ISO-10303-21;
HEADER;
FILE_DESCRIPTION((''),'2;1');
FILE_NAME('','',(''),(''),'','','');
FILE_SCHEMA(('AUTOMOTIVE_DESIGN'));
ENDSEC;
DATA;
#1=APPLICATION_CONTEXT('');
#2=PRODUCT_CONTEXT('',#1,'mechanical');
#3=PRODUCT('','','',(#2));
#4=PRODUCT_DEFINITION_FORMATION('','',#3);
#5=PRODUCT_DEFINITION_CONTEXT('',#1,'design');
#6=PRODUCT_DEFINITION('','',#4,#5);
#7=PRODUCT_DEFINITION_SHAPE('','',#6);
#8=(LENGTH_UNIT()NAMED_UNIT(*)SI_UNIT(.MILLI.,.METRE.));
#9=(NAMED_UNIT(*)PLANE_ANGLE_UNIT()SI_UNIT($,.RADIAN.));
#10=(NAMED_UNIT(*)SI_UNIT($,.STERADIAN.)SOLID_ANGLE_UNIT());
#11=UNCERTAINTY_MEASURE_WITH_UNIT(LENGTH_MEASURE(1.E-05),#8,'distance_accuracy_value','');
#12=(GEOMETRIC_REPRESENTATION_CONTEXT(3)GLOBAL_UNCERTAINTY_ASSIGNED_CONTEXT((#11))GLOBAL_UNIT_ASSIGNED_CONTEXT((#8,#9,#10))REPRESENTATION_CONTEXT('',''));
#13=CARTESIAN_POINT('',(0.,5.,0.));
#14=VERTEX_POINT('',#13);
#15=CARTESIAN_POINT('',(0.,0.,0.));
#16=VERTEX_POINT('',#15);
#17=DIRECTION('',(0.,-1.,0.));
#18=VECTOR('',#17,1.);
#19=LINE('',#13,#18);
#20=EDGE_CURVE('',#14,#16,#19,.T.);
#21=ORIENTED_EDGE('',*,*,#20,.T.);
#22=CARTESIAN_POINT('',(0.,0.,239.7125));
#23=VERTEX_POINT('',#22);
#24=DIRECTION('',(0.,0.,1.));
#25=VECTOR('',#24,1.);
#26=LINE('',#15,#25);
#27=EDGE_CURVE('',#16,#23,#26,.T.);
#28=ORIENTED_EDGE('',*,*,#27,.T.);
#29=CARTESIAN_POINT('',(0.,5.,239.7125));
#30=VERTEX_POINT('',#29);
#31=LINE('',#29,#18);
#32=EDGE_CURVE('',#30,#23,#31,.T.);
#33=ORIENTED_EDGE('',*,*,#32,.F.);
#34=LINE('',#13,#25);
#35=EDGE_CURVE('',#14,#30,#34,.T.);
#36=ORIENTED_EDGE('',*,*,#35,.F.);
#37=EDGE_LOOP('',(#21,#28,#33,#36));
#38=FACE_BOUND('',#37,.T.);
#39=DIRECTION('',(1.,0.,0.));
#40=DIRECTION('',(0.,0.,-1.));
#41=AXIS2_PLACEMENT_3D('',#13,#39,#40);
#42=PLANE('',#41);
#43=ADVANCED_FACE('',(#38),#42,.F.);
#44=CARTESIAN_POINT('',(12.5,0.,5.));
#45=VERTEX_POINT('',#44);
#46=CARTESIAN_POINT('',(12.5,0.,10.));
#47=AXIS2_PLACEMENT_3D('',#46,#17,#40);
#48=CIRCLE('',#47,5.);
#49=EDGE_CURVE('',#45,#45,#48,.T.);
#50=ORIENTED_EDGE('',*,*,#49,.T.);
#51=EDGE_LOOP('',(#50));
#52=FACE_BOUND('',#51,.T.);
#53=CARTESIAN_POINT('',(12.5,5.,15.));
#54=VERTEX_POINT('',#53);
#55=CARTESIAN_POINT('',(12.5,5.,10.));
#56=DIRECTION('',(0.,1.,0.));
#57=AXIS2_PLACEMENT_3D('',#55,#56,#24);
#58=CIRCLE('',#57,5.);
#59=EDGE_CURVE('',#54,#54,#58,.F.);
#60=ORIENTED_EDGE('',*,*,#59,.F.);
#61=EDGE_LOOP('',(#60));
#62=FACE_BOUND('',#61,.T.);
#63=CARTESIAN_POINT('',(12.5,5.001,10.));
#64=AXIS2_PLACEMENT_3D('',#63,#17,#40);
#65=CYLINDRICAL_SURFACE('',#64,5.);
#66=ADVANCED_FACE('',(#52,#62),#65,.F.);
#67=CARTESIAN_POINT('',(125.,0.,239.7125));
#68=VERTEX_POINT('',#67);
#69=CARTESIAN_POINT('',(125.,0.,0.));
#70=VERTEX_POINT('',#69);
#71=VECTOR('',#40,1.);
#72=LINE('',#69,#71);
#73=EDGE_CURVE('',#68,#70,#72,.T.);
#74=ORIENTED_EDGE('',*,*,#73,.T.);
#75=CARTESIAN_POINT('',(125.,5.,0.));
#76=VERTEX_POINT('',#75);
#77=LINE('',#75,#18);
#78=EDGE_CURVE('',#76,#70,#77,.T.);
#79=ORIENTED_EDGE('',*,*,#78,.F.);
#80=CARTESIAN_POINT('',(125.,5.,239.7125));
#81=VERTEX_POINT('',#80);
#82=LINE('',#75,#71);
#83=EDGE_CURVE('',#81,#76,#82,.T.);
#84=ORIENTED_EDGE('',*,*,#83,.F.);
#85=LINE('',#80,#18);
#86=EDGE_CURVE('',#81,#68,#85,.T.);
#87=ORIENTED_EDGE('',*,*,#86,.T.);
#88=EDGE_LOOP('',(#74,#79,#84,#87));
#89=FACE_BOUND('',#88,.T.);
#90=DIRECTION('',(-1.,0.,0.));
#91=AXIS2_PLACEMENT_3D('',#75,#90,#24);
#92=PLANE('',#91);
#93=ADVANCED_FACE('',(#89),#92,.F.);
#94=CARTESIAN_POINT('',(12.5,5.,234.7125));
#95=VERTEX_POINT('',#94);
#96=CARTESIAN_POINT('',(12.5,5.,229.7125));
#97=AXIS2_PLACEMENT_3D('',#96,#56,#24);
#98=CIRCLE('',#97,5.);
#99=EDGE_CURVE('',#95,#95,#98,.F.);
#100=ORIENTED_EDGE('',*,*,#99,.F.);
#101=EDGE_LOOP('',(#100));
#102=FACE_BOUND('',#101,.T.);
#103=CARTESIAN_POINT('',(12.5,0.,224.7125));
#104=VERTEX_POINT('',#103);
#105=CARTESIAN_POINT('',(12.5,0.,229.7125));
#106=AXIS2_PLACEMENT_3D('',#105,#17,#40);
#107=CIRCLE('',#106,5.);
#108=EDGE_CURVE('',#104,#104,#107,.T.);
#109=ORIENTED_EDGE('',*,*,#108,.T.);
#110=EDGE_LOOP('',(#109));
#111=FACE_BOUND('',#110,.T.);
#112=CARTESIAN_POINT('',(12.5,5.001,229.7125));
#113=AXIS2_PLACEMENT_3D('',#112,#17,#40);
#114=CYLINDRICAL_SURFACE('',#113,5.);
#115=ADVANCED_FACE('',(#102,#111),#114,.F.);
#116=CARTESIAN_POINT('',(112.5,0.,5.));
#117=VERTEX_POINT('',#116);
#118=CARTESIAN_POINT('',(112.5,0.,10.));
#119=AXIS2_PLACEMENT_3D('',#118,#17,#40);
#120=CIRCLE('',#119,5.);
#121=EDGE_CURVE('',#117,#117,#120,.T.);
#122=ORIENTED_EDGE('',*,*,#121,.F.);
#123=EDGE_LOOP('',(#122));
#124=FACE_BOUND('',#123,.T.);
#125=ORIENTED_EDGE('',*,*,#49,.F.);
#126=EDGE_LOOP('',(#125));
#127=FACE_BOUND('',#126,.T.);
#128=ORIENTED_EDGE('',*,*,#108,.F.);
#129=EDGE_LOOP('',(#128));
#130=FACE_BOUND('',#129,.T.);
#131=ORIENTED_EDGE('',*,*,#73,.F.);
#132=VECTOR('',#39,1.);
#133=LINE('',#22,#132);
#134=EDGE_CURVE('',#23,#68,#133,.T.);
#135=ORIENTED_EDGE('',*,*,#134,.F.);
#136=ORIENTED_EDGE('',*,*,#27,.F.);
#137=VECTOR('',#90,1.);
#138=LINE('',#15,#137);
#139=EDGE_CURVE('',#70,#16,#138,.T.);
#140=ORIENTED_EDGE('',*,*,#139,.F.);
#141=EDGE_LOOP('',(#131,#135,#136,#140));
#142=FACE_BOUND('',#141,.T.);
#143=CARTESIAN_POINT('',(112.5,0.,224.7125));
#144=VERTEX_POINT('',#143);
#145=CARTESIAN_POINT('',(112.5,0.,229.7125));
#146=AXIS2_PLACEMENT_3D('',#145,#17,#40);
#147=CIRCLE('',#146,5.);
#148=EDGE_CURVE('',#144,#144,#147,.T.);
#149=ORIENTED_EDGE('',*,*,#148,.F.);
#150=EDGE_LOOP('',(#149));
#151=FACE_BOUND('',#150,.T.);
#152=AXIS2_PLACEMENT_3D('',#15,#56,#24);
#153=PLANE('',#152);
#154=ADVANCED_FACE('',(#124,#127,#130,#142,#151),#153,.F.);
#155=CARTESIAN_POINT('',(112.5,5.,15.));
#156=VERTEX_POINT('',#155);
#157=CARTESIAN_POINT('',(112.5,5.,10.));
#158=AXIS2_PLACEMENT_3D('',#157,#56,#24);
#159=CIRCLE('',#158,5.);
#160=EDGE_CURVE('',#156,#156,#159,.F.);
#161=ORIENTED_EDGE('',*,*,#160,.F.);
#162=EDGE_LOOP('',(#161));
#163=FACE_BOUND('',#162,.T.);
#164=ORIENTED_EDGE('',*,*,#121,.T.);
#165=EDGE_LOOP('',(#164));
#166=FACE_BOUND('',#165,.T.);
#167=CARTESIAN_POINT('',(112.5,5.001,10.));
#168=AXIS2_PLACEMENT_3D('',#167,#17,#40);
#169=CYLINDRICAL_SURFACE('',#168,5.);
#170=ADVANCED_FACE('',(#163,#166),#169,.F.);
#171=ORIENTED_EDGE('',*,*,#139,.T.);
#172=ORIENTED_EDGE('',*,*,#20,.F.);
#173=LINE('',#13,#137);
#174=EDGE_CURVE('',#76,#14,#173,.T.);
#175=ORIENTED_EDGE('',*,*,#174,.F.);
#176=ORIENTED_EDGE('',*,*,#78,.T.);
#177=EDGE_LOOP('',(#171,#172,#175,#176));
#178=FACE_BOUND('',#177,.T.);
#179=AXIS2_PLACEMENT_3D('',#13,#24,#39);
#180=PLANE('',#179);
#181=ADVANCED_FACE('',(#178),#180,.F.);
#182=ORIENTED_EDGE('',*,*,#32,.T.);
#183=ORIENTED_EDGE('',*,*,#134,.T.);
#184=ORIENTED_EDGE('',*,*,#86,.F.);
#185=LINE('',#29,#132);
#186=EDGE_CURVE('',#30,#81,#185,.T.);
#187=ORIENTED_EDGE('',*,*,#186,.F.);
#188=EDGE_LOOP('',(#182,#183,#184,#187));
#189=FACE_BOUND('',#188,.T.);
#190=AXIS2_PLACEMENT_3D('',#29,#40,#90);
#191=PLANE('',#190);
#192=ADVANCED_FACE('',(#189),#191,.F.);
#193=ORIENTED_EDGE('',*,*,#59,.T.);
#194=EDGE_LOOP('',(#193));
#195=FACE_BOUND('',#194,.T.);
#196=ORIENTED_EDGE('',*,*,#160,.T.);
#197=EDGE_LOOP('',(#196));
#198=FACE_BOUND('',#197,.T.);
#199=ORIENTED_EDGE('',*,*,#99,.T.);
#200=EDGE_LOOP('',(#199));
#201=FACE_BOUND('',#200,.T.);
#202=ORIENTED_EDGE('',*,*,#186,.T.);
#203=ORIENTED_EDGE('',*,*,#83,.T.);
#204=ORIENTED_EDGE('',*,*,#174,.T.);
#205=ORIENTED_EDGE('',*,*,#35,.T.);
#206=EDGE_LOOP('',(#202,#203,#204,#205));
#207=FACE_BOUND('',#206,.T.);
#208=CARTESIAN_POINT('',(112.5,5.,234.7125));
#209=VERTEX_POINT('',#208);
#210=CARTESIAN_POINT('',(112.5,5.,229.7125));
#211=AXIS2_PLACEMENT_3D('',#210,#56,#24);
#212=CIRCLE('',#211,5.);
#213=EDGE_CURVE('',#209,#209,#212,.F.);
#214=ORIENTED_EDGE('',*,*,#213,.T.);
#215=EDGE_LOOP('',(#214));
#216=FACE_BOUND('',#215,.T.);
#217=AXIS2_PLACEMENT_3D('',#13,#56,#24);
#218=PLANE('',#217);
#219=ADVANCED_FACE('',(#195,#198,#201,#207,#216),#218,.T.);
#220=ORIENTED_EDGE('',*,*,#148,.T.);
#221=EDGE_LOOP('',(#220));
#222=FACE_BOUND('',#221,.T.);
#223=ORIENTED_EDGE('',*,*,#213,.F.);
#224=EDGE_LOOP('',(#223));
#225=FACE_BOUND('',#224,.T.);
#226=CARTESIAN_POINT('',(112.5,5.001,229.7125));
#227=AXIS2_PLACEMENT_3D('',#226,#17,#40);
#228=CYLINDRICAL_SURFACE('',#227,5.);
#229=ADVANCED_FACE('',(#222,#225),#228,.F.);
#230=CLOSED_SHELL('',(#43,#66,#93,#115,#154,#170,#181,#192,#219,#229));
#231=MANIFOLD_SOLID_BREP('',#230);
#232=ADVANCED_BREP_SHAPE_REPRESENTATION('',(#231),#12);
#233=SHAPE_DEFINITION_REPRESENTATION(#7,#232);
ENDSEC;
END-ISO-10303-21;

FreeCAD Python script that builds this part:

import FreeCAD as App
import Part
import Sketcher

V = App.Vector


def add_polygon(sketch, points):
    """Adds a closed chain of lines whose ends are joined by coincident constraints."""
    first, n = sketch.GeometryCount, len(points)
    for a, b in zip(points, points[1:] + points[:1]):
        sketch.addGeometry(Part.LineSegment(App.Vector(*a, 0), App.Vector(*b, 0)), False)
    for i in range(n):
        sketch.addConstraint(Sketcher.Constraint("Coincident", first + i, 2, first + (i + 1) % n, 1))

doc = App.newDocument("Part")
params = doc.addObject("Spreadsheet::Sheet", "Params")
for row, (alias, value) in enumerate([
    ("sketch1_width", "125 mm"),
    ("pad1_length", "5 mm"),
    ("sketch2_diameter", "10 mm"),
    ("sketch3_diameter", "10 mm"),
    ("sketch4_diameter", "10 mm"),
    ("sketch5_diameter", "10 mm"),
], start=1):
    params.set(f"A{row}", alias)
    params.set(f"B{row}", "=" + value)
    params.setAlias(f"B{row}", alias)

body = doc.addObject("PartDesign::Body", "Body")

# Sketch on XZ plane
sketch1 = body.newObject("Sketcher::SketchObject", "Sketch")
sketch1.AttachmentSupport = (doc.getObject("XZ_Plane"), [""])
sketch1.MapMode = "FlatFace"
add_polygon(sketch1, [(0, 0), (0, 240), (125, 240), (125, 0)])  # lines 0-3
sketch1.addConstraint([
    Sketcher.Constraint("Vertical", 0),
    Sketcher.Constraint("Horizontal", 1),
    Sketcher.Constraint("Vertical", 2),
    Sketcher.Constraint("Horizontal", 3),
    Sketcher.Constraint("Coincident", 3, 2, -1, 1),
    Sketcher.Constraint("DistanceX", 1, 1, 1, 2, 125.0),
    Sketcher.Constraint("DistanceY", 0, 1, 0, 2, 239.7125),
])
sketch1.setExpression("Constraints[9]", "Params.sketch1_width")
pad1 = body.newObject("PartDesign::Pad", "Pad")
pad1.Profile = sketch1
pad1.setExpression("Length", "Params.pad1_length")
pad1.Reversed = True

# Sketch on XZ plane
sketch2 = body.newObject("Sketcher::SketchObject", "Sketch001")
sketch2.AttachmentSupport = (doc.getObject("XZ_Plane"), [""])
sketch2.MapMode = "FlatFace"
sketch2.addGeometry(Part.Circle(V(12, 230, 0), V(0, 0, 1), 5), False)
sketch2.addConstraint([
    Sketcher.Constraint("Diameter", 0, 10.0),
    Sketcher.Constraint("DistanceX", -1, 1, 0, 3, 12.5),
    Sketcher.Constraint("DistanceY", -1, 1, 0, 3, 229.7125),
])
sketch2.setExpression("Constraints[0]", "Params.sketch2_diameter")
pocket1 = body.newObject("PartDesign::Pocket", "Pocket")
pocket1.Profile = sketch2
pocket1.Type = "UpToFirst"

# Sketch on XZ plane
sketch3 = body.newObject("Sketcher::SketchObject", "Sketch002")
sketch3.AttachmentSupport = (doc.getObject("XZ_Plane"), [""])
sketch3.MapMode = "FlatFace"
sketch3.addGeometry(Part.Circle(V(112, 230, 0), V(0, 0, 1), 5), False)
sketch3.addConstraint([
    Sketcher.Constraint("Diameter", 0, 10.0),
    Sketcher.Constraint("DistanceX", -1, 1, 0, 3, 112.5),
    Sketcher.Constraint("DistanceY", -1, 1, 0, 3, 229.7125),
])
sketch3.setExpression("Constraints[0]", "Params.sketch3_diameter")
pocket2 = body.newObject("PartDesign::Pocket", "Pocket001")
pocket2.Profile = sketch3
pocket2.Type = "UpToFirst"

# Sketch on XZ plane
sketch4 = body.newObject("Sketcher::SketchObject", "Sketch003")
sketch4.AttachmentSupport = (doc.getObject("XZ_Plane"), [""])
sketch4.MapMode = "FlatFace"
sketch4.addGeometry(Part.Circle(V(12, 10, 0), V(0, 0, 1), 5), False)
sketch4.addConstraint([
    Sketcher.Constraint("Diameter", 0, 10.0),
    Sketcher.Constraint("DistanceY", -1, 1, 0, 3, 10.0),
    Sketcher.Constraint("DistanceX", -1, 1, 0, 3, 12.5),
])
sketch4.setExpression("Constraints[0]", "Params.sketch4_diameter")
pocket3 = body.newObject("PartDesign::Pocket", "Pocket002")
pocket3.Profile = sketch4
pocket3.Type = "UpToFirst"

# Sketch on XZ plane
sketch5 = body.newObject("Sketcher::SketchObject", "Sketch004")
sketch5.AttachmentSupport = (doc.getObject("XZ_Plane"), [""])
sketch5.MapMode = "FlatFace"
sketch5.addGeometry(Part.Circle(V(112, 10, 0), V(0, 0, 1), 5), False)
sketch5.addConstraint([
    Sketcher.Constraint("Diameter", 0, 10.0),
    Sketcher.Constraint("DistanceY", -1, 1, 0, 3, 10.0),
    Sketcher.Constraint("DistanceX", -1, 1, 0, 3, 112.5),
])
sketch5.setExpression("Constraints[0]", "Params.sketch5_diameter")
pocket4 = body.newObject("PartDesign::Pocket", "Pocket003")
pocket4.Profile = sketch5
pocket4.Type = "UpToFirst"

doc.recompute()
